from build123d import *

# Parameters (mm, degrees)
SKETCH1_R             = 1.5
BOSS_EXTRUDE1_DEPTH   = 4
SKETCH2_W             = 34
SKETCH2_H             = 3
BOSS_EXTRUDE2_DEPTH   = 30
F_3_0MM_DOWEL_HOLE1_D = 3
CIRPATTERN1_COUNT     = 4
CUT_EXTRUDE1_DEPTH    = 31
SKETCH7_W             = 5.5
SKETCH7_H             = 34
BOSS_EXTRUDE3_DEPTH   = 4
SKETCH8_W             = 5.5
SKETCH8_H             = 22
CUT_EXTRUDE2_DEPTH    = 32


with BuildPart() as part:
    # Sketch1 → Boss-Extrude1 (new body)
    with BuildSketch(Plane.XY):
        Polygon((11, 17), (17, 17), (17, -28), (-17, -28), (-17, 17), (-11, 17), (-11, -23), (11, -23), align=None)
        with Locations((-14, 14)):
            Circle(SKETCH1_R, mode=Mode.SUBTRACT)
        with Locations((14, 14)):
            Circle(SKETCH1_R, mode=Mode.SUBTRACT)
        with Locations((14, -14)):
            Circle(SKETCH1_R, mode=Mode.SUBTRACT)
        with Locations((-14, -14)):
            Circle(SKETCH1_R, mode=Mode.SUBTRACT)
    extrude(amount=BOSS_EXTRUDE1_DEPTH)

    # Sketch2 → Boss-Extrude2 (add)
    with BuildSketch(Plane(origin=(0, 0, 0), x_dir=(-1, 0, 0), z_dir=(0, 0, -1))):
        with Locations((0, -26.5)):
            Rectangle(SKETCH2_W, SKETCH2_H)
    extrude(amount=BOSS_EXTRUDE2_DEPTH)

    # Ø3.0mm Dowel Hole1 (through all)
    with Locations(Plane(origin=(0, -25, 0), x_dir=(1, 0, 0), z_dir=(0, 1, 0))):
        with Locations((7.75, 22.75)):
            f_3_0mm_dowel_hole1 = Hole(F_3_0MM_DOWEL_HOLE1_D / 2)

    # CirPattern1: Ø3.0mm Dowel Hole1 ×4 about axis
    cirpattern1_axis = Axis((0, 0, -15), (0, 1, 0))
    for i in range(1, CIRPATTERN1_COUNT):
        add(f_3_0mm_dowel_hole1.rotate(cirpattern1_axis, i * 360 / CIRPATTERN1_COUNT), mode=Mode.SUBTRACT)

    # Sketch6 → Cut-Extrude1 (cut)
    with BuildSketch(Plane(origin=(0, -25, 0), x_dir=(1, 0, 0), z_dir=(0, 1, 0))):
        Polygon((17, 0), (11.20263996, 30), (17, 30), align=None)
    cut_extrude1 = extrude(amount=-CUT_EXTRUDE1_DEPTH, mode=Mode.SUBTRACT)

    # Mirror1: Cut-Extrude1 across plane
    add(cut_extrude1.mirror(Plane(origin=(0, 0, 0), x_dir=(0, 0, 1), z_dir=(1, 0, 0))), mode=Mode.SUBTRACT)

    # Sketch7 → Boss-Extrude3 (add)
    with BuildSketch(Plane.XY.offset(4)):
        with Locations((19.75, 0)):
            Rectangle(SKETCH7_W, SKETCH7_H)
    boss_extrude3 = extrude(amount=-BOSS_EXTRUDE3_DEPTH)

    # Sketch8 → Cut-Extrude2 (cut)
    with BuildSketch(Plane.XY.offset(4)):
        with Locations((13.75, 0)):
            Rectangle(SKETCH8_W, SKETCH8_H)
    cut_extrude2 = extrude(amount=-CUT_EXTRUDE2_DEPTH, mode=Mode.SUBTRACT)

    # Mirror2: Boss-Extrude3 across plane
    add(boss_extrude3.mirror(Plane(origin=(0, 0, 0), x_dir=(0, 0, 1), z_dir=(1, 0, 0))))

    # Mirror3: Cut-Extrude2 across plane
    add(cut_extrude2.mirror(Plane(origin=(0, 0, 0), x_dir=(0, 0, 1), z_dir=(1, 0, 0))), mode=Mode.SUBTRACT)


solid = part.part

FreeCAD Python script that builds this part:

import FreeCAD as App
import Part
import Sketcher

doc = App.newDocument("Part")
body = doc.addObject("PartDesign::Body", "Body")

sketch1 = body.newObject("Sketcher::SketchObject", "Sketch")
sketch1.AttachmentSupport = (doc.getObject("XY_Plane"), [""])
sketch1.MapMode = "FlatFace"
sketch1.addGeometry(Part.LineSegment(App.Vector(17, 17, 0), App.Vector(11, 17, 0)), False)
sketch1.addGeometry(Part.LineSegment(App.Vector(11, 17, 0), App.Vector(11, -23, 0)), False)
sketch1.addGeometry(Part.LineSegment(App.Vector(11, -23, 0), App.Vector(-11, -23, 0)), False)
sketch1.addGeometry(Part.LineSegment(App.Vector(-11, -23, 0), App.Vector(-11, 17, 0)), False)
sketch1.addGeometry(Part.LineSegment(App.Vector(-11, 17, 0), App.Vector(-17, 17, 0)), False)
sketch1.addGeometry(Part.LineSegment(App.Vector(-17, 17, 0), App.Vector(-17, -28, 0)), False)
sketch1.addGeometry(Part.LineSegment(App.Vector(-17, -28, 0), App.Vector(17, -28, 0)), False)
sketch1.addGeometry(Part.LineSegment(App.Vector(17, -28, 0), App.Vector(17, 17, 0)), False)
sketch1.addGeometry(Part.Circle(App.Vector(14, -14, 0), App.Vector(0, 0, 1), 1.5), False)
sketch1.addGeometry(Part.Circle(App.Vector(-14, -14, 0), App.Vector(0, 0, 1), 1.5), False)
sketch1.addGeometry(Part.Circle(App.Vector(14, 14, 0), App.Vector(0, 0, 1), 1.5), False)
sketch1.addGeometry(Part.Circle(App.Vector(-14, 14, 0), App.Vector(0, 0, 1), 1.5), False)
sketch1.addConstraint(Sketcher.Constraint("Coincident", 0, 2, 1, 1))
sketch1.addConstraint(Sketcher.Constraint("Coincident", 1, 2, 2, 1))
sketch1.addConstraint(Sketcher.Constraint("Coincident", 2, 2, 3, 1))
sketch1.addConstraint(Sketcher.Constraint("Coincident", 3, 2, 4, 1))
sketch1.addConstraint(Sketcher.Constraint("Coincident", 4, 2, 5, 1))
sketch1.addConstraint(Sketcher.Constraint("Coincident", 5, 2, 6, 1))
sketch1.addConstraint(Sketcher.Constraint("Coincident", 6, 2, 7, 1))
sketch1.addConstraint(Sketcher.Constraint("Coincident", 7, 2, 0, 1))
sketch1.addConstraint(Sketcher.Constraint("Horizontal", 0))
sketch1.addConstraint(Sketcher.Constraint("Vertical", 1))
sketch1.addConstraint(Sketcher.Constraint("Horizontal", 2))
sketch1.addConstraint(Sketcher.Constraint("Vertical", 3))
sketch1.addConstraint(Sketcher.Constraint("Horizontal", 4))
sketch1.addConstraint(Sketcher.Constraint("Vertical", 5))
sketch1.addConstraint(Sketcher.Constraint("Horizontal", 6))
sketch1.addConstraint(Sketcher.Constraint("Vertical", 7))
sketch1.addConstraint(Sketcher.Constraint("Equal", 8, 9))
sketch1.addConstraint(Sketcher.Constraint("Equal", 9, 10))
sketch1.addConstraint(Sketcher.Constraint("Equal", 10, 11))
sketch1.addConstraint(Sketcher.Constraint("Symmetric", 9, 3, 10, 3, -1, 1))
sketch1.addConstraint(Sketcher.Constraint("Symmetric", 8, 3, 11, 3, -1, 1))
sketch1.addConstraint(Sketcher.Constraint("Symmetric", 8, 3, 9, 3, -2))
sketch1.addConstraint(Sketcher.Constraint("Symmetric", 0, 2, 3, 2, -2))
sketch1.addConstraint(Sketcher.Constraint("Equal", 0, 4))
sketch1.addConstraint(Sketcher.Constraint("Diameter", 8, 3.0))
sketch1.addConstraint(Sketcher.Constraint("DistanceX", 0, 2, 0, 1, 6.0))
sketch1.addConstraint(Sketcher.Constraint("DistanceX", 2, 2, 2, 1, 22.0))
sketch1.addConstraint(Sketcher.Constraint("DistanceY", 1, 2, 1, 1, 40.0))
sketch1.addConstraint(Sketcher.Constraint("DistanceY", 5, 2, 5, 1, 45.0))
sketch1.addConstraint(Sketcher.Constraint("DistanceX", -1, 1, 8, 3, 14.0))
sketch1.addConstraint(Sketcher.Constraint("DistanceY", 8, 3, -1, 1, 14.0))
sketch1.addConstraint(Sketcher.Constraint("DistanceY", -1, 1, 0, 2, 17.0))
pad1 = body.newObject("PartDesign::Pad", "Pad")
pad1.Profile = sketch1
pad1.Length = 4

sketch2 = body.newObject("Sketcher::SketchObject", "Sketch001")
sketch2.AttachmentSupport = (doc.getObject("XY_Plane"), [""])
sketch2.MapMode = "FlatFace"
sketch2.addGeometry(Part.LineSegment(App.Vector(17, -25, 0), App.Vector(17, -28, 0)), False)
sketch2.addGeometry(Part.LineSegment(App.Vector(17, -28, 0), App.Vector(-17, -28, 0)), False)
sketch2.addGeometry(Part.LineSegment(App.Vector(-17, -28, 0), App.Vector(-17, -25, 0)), False)
sketch2.addGeometry(Part.LineSegment(App.Vector(-17, -25, 0), App.Vector(17, -25, 0)), False)
sketch2.addConstraint(Sketcher.Constraint("Coincident", 0, 2, 1, 1))
sketch2.addConstraint(Sketcher.Constraint("Coincident", 1, 2, 2, 1))
sketch2.addConstraint(Sketcher.Constraint("Coincident", 2, 2, 3, 1))
sketch2.addConstraint(Sketcher.Constraint("Coincident", 3, 2, 0, 1))
sketch2.addConstraint(Sketcher.Constraint("Vertical", 0))
sketch2.addConstraint(Sketcher.Constraint("Horizontal", 1))
sketch2.addConstraint(Sketcher.Constraint("Vertical", 2))
sketch2.addConstraint(Sketcher.Constraint("Horizontal", 3))
sketch2.addConstraint(Sketcher.Constraint("DistanceX", 1, 2, 1, 1, 34.0))
sketch2.addConstraint(Sketcher.Constraint("DistanceY", 0, 2, 0, 1, 3.0))
sketch2.addConstraint(Sketcher.Constraint("DistanceX", -1, 1, 0, 2, 17.0))
sketch2.addConstraint(Sketcher.Constraint("DistanceY", 0, 2, -1, 1, 28.0))
pad2 = body.newObject("PartDesign::Pad", "Pad001")
pad2.Profile = sketch2
pad2.Length = 30
pad2.Reversed = True

sketch3 = body.newObject("Sketcher::SketchObject", "Sketch002")
sketch3.AttachmentSupport = (doc.getObject("XZ_Plane"), [""])
sketch3.MapMode = "FlatFace"
sketch3.AttachmentOffset = App.Placement(App.Vector(0, 0, 25), App.Rotation())
sketch3.addGeometry(Part.Circle(App.Vector(7.8, -22.8, 0), App.Vector(0, 0, 1), 1.5), False)
sketch3.addConstraint(Sketcher.Constraint("Diameter", 0, 3.0))
sketch3.addConstraint(Sketcher.Constraint("DistanceX", -1, 1, 0, 3, 7.75))
sketch3.addConstraint(Sketcher.Constraint("DistanceY", 0, 3, -1, 1, 22.75))
doc.recompute()
hole = body.newObject("PartDesign::Hole", "Hole")
hole.Profile = sketch3
hole.ThreadType = "None"
hole.Diameter = 3
hole.DepthType = "ThroughAll"
hole.Reversed = True
doc.recompute()

datumline = body.newObject("PartDesign::Line", "DatumLine")
datumline.Placement = App.Placement(App.Vector(0, 0, -15), App.Rotation(App.Vector(0, 0, 1), App.Vector(0, 1, 0)))
polarpattern = body.newObject("PartDesign::PolarPattern", "PolarPattern")
polarpattern.Originals = [hole]
polarpattern.Axis = (datumline, [""])
polarpattern.Angle = 360
polarpattern.Occurrences = 4
body.Tip = polarpattern

sketch4 = body.newObject("Sketcher::SketchObject", "Sketch003")
sketch4.AttachmentSupport = (doc.getObject("XZ_Plane"), [""])
sketch4.MapMode = "FlatFace"
sketch4.AttachmentOffset = App.Placement(App.Vector(0, 0, 25), App.Rotation())
sketch4.addGeometry(Part.LineSegment(App.Vector(11, -30, 0), App.Vector(17, 0, 0)), False)
sketch4.addGeometry(Part.LineSegment(App.Vector(17, 0, 0), App.Vector(17, -30, 0)), False)
sketch4.addGeometry(Part.LineSegment(App.Vector(17, -30, 0), App.Vector(11, -30, 0)), False)
sketch4.addConstraint(Sketcher.Constraint("Coincident", 0, 2, 1, 1))
sketch4.addConstraint(Sketcher.Constraint("Coincident", 1, 2, 2, 1))
sketch4.addConstraint(Sketcher.Constraint("Coincident", 2, 2, 0, 1))
sketch4.addConstraint(Sketcher.Constraint("Vertical", 1))
sketch4.addConstraint(Sketcher.Constraint("Horizontal", 2))
sketch4.addConstraint(Sketcher.Constraint("PointOnObject", 0, 2, -1))
sketch4.addConstraint(Sketcher.Constraint("DistanceY", 1, 2, 1, 1, 30.0))
sketch4.addConstraint(Sketcher.Constraint("DistanceX", -1, 1, 0, 2, 17.0))
sketch4.addConstraint(Sketcher.Constraint("DistanceX", 2, 2, 2, 1, 5.79736))
pocket1 = body.newObject("PartDesign::Pocket", "Pocket")
pocket1.Profile = sketch4
pocket1.Length = 31
pocket1.Reversed = True
doc.recompute()

mirrored = body.newObject("PartDesign::Mirrored", "Mirrored")
mirrored.Originals = [pocket1]
mirrored.MirrorPlane = (doc.getObject("YZ_Plane"), [""])
body.Tip = mirrored

sketch5 = body.newObject("Sketcher::SketchObject", "Sketch004")
sketch5.AttachmentSupport = (doc.getObject("XY_Plane"), [""])
sketch5.MapMode = "FlatFace"
sketch5.AttachmentOffset = App.Placement(App.Vector(0, 0, 4), App.Rotation())
sketch5.addGeometry(Part.LineSegment(App.Vector(17, 17, 0), App.Vector(17, -17, 0)), False)
sketch5.addGeometry(Part.LineSegment(App.Vector(17, -17, 0), App.Vector(22, -17, 0)), False)
sketch5.addGeometry(Part.LineSegment(App.Vector(22, -17, 0), App.Vector(22, 17, 0)), False)
sketch5.addGeometry(Part.LineSegment(App.Vector(22, 17, 0), App.Vector(17, 17, 0)), False)
sketch5.addConstraint(Sketcher.Constraint("Coincident", 0, 2, 1, 1))
sketch5.addConstraint(Sketcher.Constraint("Coincident", 1, 2, 2, 1))
sketch5.addConstraint(Sketcher.Constraint("Coincident", 2, 2, 3, 1))
sketch5.addConstraint(Sketcher.Constraint("Coincident", 3, 2, 0, 1))
sketch5.addConstraint(Sketcher.Constraint("Vertical", 0))
sketch5.addConstraint(Sketcher.Constraint("Horizontal", 1))
sketch5.addConstraint(Sketcher.Constraint("Vertical", 2))
sketch5.addConstraint(Sketcher.Constraint("Horizontal", 3))
sketch5.addConstraint(Sketcher.Constraint("DistanceY", 0, 2, 0, 1, 34.0))
sketch5.addConstraint(Sketcher.Constraint("DistanceX", 1, 1, 1, 2, 5.5))
sketch5.addConstraint(Sketcher.Constraint("DistanceX", -1, 1, 0, 2, 17.0))
sketch5.addConstraint(Sketcher.Constraint("DistanceY", 0, 2, -1, 1, 17.0))
pad3 = body.newObject("PartDesign::Pad", "Pad002")
pad3.Profile = sketch5
pad3.Length = 4
pad3.Reversed = True

sketch6 = body.newObject("Sketcher::SketchObject", "Sketch005")
sketch6.AttachmentSupport = (doc.getObject("XY_Plane"), [""])
sketch6.MapMode = "FlatFace"
sketch6.AttachmentOffset = App.Placement(App.Vector(0, 0, 4), App.Rotation())
sketch6.addGeometry(Part.LineSegment(App.Vector(11, 11, 0), App.Vector(11, -11, 0)), False)
sketch6.addGeometry(Part.LineSegment(App.Vector(11, -11, 0), App.Vector(16, -11, 0)), False)
sketch6.addGeometry(Part.LineSegment(App.Vector(16, -11, 0), App.Vector(16, 11, 0)), False)
sketch6.addGeometry(Part.LineSegment(App.Vector(16, 11, 0), App.Vector(11, 11, 0)), False)
sketch6.addConstraint(Sketcher.Constraint("Coincident", 0, 2, 1, 1))
sketch6.addConstraint(Sketcher.Constraint("Coincident", 1, 2, 2, 1))
sketch6.addConstraint(Sketcher.Constraint("Coincident", 2, 2, 3, 1))
sketch6.addConstraint(Sketcher.Constraint("Coincident", 3, 2, 0, 1))
sketch6.addConstraint(Sketcher.Constraint("Vertical", 0))
sketch6.addConstraint(Sketcher.Constraint("Horizontal", 1))
sketch6.addConstraint(Sketcher.Constraint("Vertical", 2))
sketch6.addConstraint(Sketcher.Constraint("Horizontal", 3))
sketch6.addConstraint(Sketcher.Constraint("DistanceY", 0, 2, 0, 1, 22.0))
sketch6.addConstraint(Sketcher.Constraint("DistanceX", 1, 1, 1, 2, 5.5))
sketch6.addConstraint(Sketcher.Constraint("DistanceX", -1, 1, 0, 2, 11.0))
sketch6.addConstraint(Sketcher.Constraint("DistanceY", 0, 2, -1, 1, 11.0))
pocket2 = body.newObject("PartDesign::Pocket", "Pocket001")
pocket2.Profile = sketch6
pocket2.Length = 32
doc.recompute()

mirrored2 = body.newObject("PartDesign::Mirrored", "Mirrored001")
mirrored2.Originals = [pad3]
mirrored2.MirrorPlane = (doc.getObject("YZ_Plane"), [""])
body.Tip = mirrored2
doc.recompute()

mirrored3 = body.newObject("PartDesign::Mirrored", "Mirrored002")
mirrored3.Originals = [pocket2]
mirrored3.MirrorPlane = (doc.getObject("YZ_Plane"), [""])
body.Tip = mirrored3

doc.recompute()
